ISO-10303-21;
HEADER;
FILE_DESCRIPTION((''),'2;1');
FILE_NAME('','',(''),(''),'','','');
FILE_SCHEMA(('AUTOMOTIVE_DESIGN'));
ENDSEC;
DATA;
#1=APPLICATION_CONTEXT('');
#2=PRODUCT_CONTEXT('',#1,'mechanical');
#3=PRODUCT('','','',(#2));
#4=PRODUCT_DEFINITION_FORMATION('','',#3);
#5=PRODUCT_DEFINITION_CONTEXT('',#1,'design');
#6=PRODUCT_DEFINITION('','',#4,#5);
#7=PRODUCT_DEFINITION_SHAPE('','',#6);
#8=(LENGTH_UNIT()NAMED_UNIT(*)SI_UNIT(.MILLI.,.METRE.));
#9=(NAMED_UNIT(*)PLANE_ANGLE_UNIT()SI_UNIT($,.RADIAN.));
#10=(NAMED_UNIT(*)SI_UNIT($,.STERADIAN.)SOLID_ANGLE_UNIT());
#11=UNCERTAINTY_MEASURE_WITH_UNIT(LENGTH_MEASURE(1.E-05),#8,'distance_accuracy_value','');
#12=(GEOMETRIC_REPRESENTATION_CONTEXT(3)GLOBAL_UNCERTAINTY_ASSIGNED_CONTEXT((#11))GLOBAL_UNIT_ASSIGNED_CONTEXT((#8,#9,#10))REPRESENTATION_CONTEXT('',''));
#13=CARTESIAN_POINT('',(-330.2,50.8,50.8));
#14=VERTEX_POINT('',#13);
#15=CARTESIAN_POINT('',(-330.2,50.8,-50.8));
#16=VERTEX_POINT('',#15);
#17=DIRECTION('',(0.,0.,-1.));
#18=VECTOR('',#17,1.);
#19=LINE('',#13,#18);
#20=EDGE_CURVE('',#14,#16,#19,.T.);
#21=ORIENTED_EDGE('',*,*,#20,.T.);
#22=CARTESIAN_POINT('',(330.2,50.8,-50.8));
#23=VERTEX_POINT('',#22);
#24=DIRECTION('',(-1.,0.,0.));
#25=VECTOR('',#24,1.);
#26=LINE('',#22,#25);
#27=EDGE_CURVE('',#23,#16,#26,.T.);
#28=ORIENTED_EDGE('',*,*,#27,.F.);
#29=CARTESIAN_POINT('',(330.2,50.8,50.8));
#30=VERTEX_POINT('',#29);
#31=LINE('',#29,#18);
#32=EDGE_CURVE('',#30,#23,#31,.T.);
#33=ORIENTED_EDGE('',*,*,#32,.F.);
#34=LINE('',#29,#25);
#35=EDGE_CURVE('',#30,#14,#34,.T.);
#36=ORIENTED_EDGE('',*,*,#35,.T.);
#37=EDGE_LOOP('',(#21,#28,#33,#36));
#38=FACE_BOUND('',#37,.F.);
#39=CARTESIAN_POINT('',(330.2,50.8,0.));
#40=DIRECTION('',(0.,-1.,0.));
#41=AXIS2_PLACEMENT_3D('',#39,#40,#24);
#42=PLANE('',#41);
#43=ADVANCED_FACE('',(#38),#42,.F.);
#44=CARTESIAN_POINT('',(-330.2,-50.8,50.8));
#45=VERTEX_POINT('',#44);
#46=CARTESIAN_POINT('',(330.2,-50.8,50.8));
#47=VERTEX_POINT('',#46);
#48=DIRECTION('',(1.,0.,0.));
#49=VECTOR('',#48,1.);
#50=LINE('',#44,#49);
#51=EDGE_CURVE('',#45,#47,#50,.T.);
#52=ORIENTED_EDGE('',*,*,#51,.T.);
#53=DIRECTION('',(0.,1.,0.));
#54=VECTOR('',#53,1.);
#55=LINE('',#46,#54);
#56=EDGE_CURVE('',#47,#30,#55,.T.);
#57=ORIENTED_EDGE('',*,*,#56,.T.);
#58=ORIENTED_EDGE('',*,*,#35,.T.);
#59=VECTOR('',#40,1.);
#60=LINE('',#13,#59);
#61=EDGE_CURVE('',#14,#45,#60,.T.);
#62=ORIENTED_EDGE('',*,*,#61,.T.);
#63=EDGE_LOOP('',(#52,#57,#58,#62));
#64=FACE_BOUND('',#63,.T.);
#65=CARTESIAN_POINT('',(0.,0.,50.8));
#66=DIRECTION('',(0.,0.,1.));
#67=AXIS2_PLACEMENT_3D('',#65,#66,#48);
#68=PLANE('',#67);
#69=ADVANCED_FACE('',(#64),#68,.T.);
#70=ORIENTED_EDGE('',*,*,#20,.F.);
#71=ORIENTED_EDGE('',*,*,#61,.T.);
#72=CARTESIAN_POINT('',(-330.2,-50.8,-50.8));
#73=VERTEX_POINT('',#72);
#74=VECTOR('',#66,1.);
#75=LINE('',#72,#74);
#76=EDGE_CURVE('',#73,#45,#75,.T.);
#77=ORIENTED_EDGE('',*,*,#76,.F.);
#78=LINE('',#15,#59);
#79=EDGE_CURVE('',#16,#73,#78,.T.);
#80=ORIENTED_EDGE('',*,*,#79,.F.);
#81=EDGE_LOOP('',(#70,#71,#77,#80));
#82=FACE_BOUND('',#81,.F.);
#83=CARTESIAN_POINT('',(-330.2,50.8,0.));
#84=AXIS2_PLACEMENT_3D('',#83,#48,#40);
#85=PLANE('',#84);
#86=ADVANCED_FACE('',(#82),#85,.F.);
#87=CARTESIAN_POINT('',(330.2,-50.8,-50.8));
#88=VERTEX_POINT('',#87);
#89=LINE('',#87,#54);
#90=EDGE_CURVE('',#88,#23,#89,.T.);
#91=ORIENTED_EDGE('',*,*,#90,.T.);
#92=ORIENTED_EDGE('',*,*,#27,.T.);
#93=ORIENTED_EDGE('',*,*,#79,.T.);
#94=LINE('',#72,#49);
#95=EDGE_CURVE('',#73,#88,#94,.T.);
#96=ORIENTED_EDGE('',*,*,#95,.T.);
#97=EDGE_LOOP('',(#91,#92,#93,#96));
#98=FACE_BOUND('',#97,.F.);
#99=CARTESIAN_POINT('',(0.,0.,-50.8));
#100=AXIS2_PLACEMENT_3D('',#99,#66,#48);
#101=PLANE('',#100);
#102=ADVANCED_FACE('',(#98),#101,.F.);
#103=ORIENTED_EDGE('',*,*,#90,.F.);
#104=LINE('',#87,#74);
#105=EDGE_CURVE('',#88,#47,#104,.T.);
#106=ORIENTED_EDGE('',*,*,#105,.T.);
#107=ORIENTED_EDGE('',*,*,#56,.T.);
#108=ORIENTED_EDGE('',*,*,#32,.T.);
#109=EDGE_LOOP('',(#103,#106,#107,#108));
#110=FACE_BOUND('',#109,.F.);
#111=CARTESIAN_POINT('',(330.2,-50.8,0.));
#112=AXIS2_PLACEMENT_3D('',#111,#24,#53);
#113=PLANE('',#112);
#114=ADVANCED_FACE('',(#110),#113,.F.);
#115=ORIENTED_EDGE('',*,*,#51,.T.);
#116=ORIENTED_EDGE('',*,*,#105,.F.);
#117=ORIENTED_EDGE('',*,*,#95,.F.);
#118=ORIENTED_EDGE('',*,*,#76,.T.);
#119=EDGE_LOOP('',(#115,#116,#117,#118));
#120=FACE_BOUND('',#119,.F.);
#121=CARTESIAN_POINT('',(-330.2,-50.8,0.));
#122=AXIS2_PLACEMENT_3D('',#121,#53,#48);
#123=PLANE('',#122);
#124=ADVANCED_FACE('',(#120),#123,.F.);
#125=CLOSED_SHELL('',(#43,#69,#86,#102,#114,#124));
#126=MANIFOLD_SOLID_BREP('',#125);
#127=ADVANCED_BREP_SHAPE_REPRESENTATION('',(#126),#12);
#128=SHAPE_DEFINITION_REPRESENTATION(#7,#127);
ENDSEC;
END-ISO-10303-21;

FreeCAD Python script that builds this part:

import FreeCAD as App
import Part
import Sketcher
from FreeCAD import Vector
Q = App.Units.Quantity


def add_polygon(sketch, points):
    """Adds a closed chain of lines whose ends are joined by coincident constraints."""
    first, n = sketch.GeometryCount, len(points)
    for a, b in zip(points, points[1:] + points[:1]):
        sketch.addGeometry(Part.LineSegment(App.Vector(*a, 0), App.Vector(*b, 0)), False)
    for i in range(n):
        sketch.addConstraint(Sketcher.Constraint("Coincident", first + i, 2, first + (i + 1) % n, 1))

doc = App.newDocument("Part")
params = doc.addObject("Spreadsheet::Sheet", "Params")
for row, (alias, value) in enumerate([
    ("sketch1_width", "26 in"),
    ("sketch1_height", "4 in"),
    ("pad1_length", "4 in"),
], start=1):
    params.set(f"A{row}", alias)
    params.set(f"B{row}", "=" + value)
    params.setAlias(f"B{row}", alias)

body = doc.addObject("PartDesign::Body", "Body")

# Sketch on XY plane
sketch1 = doc.addObject("Sketcher::SketchObject", "Sketch")
body.addObject(sketch1)
sketch1.AttachmentSupport = (doc.XY_Plane, [""])
sketch1.MapMode = "FlatFace"
add_polygon(sketch1, [(-330.2, 50.8), (-330.2, -50.8), (330.2, -50.8), (330.2, 50.8)])  # lines 0-3
sketch1.addConstraint(Sketcher.Constraint("Vertical", 0))
sketch1.addConstraint(Sketcher.Constraint("Horizontal", 1))
sketch1.addConstraint(Sketcher.Constraint("Vertical", 2))
sketch1.addConstraint(Sketcher.Constraint("Horizontal", 3))
sketch1.addConstraint(Sketcher.Constraint("Symmetric", 0, 2, 2, 2, -1, 1))
sketch1.addConstraint(Sketcher.Constraint("DistanceX", 1, 1, 1, 2, Q("26 in")))
sketch1.addConstraint(Sketcher.Constraint("DistanceY", 0, 2, 0, 1, Q("4 in")))
sketch1.setExpression("Constraints[9]", "Params.sketch1_width")
sketch1.setExpression("Constraints[10]", "Params.sketch1_height")
pad1 = doc.addObject("PartDesign::Pad", "Pad")
body.addObject(pad1)
pad1.Profile = sketch1
pad1.setExpression("Length", "Params.pad1_length")
pad1.Midplane = True

doc.recompute()
